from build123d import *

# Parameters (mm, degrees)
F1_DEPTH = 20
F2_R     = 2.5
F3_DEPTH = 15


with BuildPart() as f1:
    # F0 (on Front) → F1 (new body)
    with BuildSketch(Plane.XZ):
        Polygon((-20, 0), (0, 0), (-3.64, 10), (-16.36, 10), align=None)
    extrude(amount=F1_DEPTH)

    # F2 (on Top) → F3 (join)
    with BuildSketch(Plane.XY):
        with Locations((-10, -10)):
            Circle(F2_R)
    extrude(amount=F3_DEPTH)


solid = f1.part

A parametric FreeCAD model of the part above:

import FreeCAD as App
import Part
import Sketcher
Q = App.Units.Quantity

doc = App.newDocument("Part")
params = doc.addObject("Spreadsheet::Sheet", "Params")
for row, (alias, value) in enumerate([
    ("sketch1_width", "20 mm"),
    ("sketch1_width2", "12.72 mm"),
    ("pad1_length", "20 mm"),
    ("sketch2_diameter", "5 mm"),
    ("pad2_length", "15 mm"),
], start=1):
    params.set(f"A{row}", alias)
    params.set(f"B{row}", "=" + value)
    params.setAlias(f"B{row}", alias)

body = doc.addObject("PartDesign::Body", "Body")

# Sketch on XZ plane
sketch1 = body.newObject("Sketcher::SketchObject", "Sketch")
sketch1.AttachmentSupport = (doc.getObject("XZ_Plane"), [""])
sketch1.MapMode = "FlatFace"
sketch1.addGeometry([
    Part.LineSegment(App.Vector(-20, 0, 0), App.Vector(0, 0, 0)),
    Part.LineSegment(App.Vector(0, 0, 0), App.Vector(-3.64, 10, 0)),
    Part.LineSegment(App.Vector(-3.64, 10, 0), App.Vector(-16.36, 10, 0)),
    Part.LineSegment(App.Vector(-16.36, 10, 0), App.Vector(-20, 0, 0)),
], False)
sketch1.addConstraint([
    Sketcher.Constraint("Coincident", 0, 2, 1, 1),
    Sketcher.Constraint("Coincident", 1, 2, 2, 1),
    Sketcher.Constraint("Coincident", 2, 2, 3, 1),
    Sketcher.Constraint("Coincident", 3, 2, 0, 1),
    Sketcher.Constraint("Horizontal", 0),
    Sketcher.Constraint("Horizontal", 2),
    Sketcher.Constraint("Coincident", 0, 2, -1, 1),
    Sketcher.Constraint("Equal", 1, 3),
    Sketcher.Constraint("DistanceX", 0, 1, 0, 2, Q("20 mm")),
    Sketcher.Constraint("DistanceY", -1, 1, 1, 2, Q("10 mm")),
    Sketcher.Constraint("DistanceX", 2, 2, 2, 1, Q("12.72 mm")),
])
sketch1.setExpression("Constraints[8]", "Params.sketch1_width")
sketch1.setExpression("Constraints[10]", "Params.sketch1_width2")
pad1 = body.newObject("PartDesign::Pad", "Pad")
pad1.Profile = sketch1
pad1.setExpression("Length", "Params.pad1_length")

# Sketch on XY plane
sketch2 = body.newObject("Sketcher::SketchObject", "Sketch001")
sketch2.AttachmentSupport = (doc.getObject("XY_Plane"), [""])
sketch2.MapMode = "FlatFace"
sketch2.addGeometry(Part.Circle(App.Vector(-10, -10, 0), App.Vector(0, 0, 1), 2.5), False)
sketch2.addConstraint([
    Sketcher.Constraint("Diameter", 0, Q("5 mm")),
    Sketcher.Constraint("DistanceX", 0, 3, -1, 1, Q("10 mm")),
    Sketcher.Constraint("DistanceY", 0, 3, -1, 1, Q("10 mm")),
])
sketch2.setExpression("Constraints[0]", "Params.sketch2_diameter")
pad2 = body.newObject("PartDesign::Pad", "Pad001")
pad2.Profile = sketch2
pad2.setExpression("Length", "Params.pad2_length")

doc.recompute()
